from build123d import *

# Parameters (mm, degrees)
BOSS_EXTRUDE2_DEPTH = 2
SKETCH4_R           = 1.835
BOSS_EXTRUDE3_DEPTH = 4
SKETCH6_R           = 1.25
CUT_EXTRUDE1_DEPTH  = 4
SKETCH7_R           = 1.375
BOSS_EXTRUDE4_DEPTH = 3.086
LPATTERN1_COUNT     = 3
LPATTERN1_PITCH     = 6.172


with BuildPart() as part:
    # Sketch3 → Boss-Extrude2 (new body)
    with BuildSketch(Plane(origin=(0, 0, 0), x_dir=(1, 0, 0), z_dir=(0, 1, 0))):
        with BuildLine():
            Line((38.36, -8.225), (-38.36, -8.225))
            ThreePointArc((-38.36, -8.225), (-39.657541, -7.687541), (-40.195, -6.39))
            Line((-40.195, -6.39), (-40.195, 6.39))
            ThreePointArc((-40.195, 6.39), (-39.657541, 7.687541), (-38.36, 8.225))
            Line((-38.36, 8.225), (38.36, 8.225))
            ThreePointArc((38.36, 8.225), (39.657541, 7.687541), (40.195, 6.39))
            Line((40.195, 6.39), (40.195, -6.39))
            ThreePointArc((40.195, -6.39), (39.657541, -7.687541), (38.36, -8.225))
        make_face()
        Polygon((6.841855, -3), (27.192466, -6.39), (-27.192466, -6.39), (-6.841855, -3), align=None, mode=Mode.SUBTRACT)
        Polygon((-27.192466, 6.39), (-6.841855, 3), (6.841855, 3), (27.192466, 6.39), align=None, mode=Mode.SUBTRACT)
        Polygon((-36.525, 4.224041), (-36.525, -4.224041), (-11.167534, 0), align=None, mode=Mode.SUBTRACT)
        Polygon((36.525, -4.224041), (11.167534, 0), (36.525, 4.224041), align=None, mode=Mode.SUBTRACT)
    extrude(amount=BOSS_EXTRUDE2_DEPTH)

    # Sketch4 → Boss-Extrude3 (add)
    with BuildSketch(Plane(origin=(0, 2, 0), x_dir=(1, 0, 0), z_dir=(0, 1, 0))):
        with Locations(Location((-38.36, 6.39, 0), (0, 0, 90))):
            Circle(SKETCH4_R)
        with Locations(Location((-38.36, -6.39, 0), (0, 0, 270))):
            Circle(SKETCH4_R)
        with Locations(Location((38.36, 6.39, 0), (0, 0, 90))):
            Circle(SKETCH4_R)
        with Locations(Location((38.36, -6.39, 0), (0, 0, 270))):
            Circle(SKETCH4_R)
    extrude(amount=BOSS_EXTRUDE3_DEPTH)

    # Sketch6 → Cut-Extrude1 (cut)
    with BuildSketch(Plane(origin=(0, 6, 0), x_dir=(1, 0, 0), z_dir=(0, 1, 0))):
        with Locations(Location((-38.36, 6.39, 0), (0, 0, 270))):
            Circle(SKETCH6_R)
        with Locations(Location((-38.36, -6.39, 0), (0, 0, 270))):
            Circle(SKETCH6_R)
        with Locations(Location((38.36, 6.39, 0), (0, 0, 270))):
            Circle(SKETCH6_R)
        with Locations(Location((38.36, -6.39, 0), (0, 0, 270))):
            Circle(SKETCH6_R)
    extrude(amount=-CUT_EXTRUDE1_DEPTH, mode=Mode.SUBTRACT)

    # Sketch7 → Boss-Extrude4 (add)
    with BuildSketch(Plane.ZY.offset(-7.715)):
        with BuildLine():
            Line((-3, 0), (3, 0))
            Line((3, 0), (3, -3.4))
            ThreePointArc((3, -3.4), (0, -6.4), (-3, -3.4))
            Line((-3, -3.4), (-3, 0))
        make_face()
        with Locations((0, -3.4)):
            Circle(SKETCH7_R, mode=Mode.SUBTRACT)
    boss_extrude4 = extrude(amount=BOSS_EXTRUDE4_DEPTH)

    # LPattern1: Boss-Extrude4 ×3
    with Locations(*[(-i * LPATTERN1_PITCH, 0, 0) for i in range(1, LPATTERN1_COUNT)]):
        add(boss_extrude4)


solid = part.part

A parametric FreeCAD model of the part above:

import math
import FreeCAD as App
import Part
import Sketcher

V = App.Vector
Q = App.Units.Quantity

doc = App.newDocument("Part")
params = doc.addObject("Spreadsheet::Sheet", "Params")
for row, (alias, value) in enumerate([
    ("sketch1_width", "76.72 mm"),
    ("sketch1_height", "12.78 mm"),
    ("pad1_length", "2 mm"),
    ("sketch2_diameter", "3.67 mm"),
    ("pad2_length", "4 mm"),
    ("sketch3_diameter", "2.5 mm"),
    ("pocket1_length", "4 mm"),
    ("sketch4_radius", "3 mm"),
    ("sketch4_diameter", "2.75 mm"),
    ("sketch4_width", "3.4 mm"),
    ("pad3_length", "3.086 mm"),
    ("linearpattern_pitch", "6.172 mm"),
], start=1):
    params.set(f"A{row}", alias)
    params.set(f"B{row}", "=" + value)
    params.setAlias(f"B{row}", alias)

body = doc.addObject("PartDesign::Body", "Body")

sketch1 = doc.addObject("Sketcher::SketchObject", "Sketch")
body.addObject(sketch1)
sketch1.AttachmentSupport = (doc.XZ_Plane, [""])
sketch1.MapMode = "FlatFace"
sketch1.addGeometry([
    Part.LineSegment(V(-38.36, 8.225, 0), V(38.36, 8.225, 0)),
    Part.ArcOfCircle(Part.Circle(V(38.36, 6.39, 0), V(0, 0, 1), 1.835), math.radians(-0.000006), math.radians(90.000006)),
    Part.LineSegment(V(40.195, 6.39, 0), V(40.195, -6.39, 0)),
    Part.ArcOfCircle(Part.Circle(V(38.36, -6.39, 0), V(0, 0, 1), 1.835), math.radians(-90.000006), math.radians(0.000006)),
    Part.LineSegment(V(38.36, -8.225, 0), V(-38.36, -8.225, 0)),
    Part.ArcOfCircle(Part.Circle(V(-38.36, -6.39, 0), V(0, 0, 1), 1.835), math.radians(179.999994), math.radians(270.000006)),
    Part.LineSegment(V(-40.195, -6.39, 0), V(-40.195, 6.39, 0)),
    Part.ArcOfCircle(Part.Circle(V(-38.36, 6.39, 0), V(0, 0, 1), 1.835), math.radians(89.999994), math.radians(180.000006)),
    Part.LineSegment(V(6.841855, 3, 0), V(27.192466, 6.39, 0)),
    Part.LineSegment(V(27.192466, 6.39, 0), V(-27.192466, 6.39, 0)),
    Part.LineSegment(V(-27.192466, 6.39, 0), V(-6.841855, 3, 0)),
    Part.LineSegment(V(-6.841855, 3, 0), V(6.841855, 3, 0)),
    Part.LineSegment(V(36.525, 4.224041, 0), V(11.167534, 0, 0)),
    Part.LineSegment(V(11.167534, 0, 0), V(36.525, -4.224041, 0)),
    Part.LineSegment(V(36.525, -4.224041, 0), V(36.525, 4.224041, 0)),
    Part.LineSegment(V(-36.525, -4.224041, 0), V(-11.167534, 0, 0)),
    Part.LineSegment(V(-11.167534, 0, 0), V(-36.525, 4.224041, 0)),
    Part.LineSegment(V(-36.525, 4.224041, 0), V(-36.525, -4.224041, 0)),
    Part.LineSegment(V(-27.192466, -6.39, 0), V(27.192466, -6.39, 0)),
    Part.LineSegment(V(27.192466, -6.39, 0), V(6.841855, -3, 0)),
    Part.LineSegment(V(6.841855, -3, 0), V(-6.841855, -3, 0)),
    Part.LineSegment(V(-6.841855, -3, 0), V(-27.192466, -6.39, 0)),
], False)
sketch1.addConstraint([
    Sketcher.Constraint("Tangent", 0, 2, 1, 2),
    Sketcher.Constraint("Tangent", 1, 1, 2, 1),
    Sketcher.Constraint("Tangent", 2, 2, 3, 2),
    Sketcher.Constraint("Tangent", 3, 1, 4, 1),
    Sketcher.Constraint("Tangent", 4, 2, 5, 2),
    Sketcher.Constraint("Tangent", 5, 1, 6, 1),
    Sketcher.Constraint("Tangent", 6, 2, 7, 2),
    Sketcher.Constraint("Tangent", 7, 1, 0, 1),
    Sketcher.Constraint("Coincident", 8, 2, 9, 1),
    Sketcher.Constraint("Coincident", 9, 2, 10, 1),
    Sketcher.Constraint("Coincident", 10, 2, 11, 1),
    Sketcher.Constraint("Coincident", 11, 2, 8, 1),
    Sketcher.Constraint("Coincident", 12, 2, 13, 1),
    Sketcher.Constraint("Coincident", 13, 2, 14, 1),
    Sketcher.Constraint("Coincident", 14, 2, 12, 1),
    Sketcher.Constraint("Coincident", 15, 2, 16, 1),
    Sketcher.Constraint("Coincident", 16, 2, 17, 1),
    Sketcher.Constraint("Coincident", 17, 2, 15, 1),
    Sketcher.Constraint("Coincident", 18, 2, 19, 1),
    Sketcher.Constraint("Coincident", 19, 2, 20, 1),
    Sketcher.Constraint("Coincident", 20, 2, 21, 1),
    Sketcher.Constraint("Coincident", 21, 2, 18, 1),
    Sketcher.Constraint("Horizontal", 0),
    Sketcher.Constraint("Vertical", 2),
    Sketcher.Constraint("Horizontal", 4),
    Sketcher.Constraint("Vertical", 6),
    Sketcher.Constraint("Horizontal", 9),
    Sketcher.Constraint("Horizontal", 11),
    Sketcher.Constraint("Vertical", 14),
    Sketcher.Constraint("Vertical", 17),
    Sketcher.Constraint("Horizontal", 18),
    Sketcher.Constraint("Horizontal", 20),
    Sketcher.Constraint("Equal", 1, 3),
    Sketcher.Constraint("Equal", 3, 5),
    Sketcher.Constraint("Equal", 5, 7),
    Sketcher.Constraint("Symmetric", 1, 3, 5, 3, -1, 1),
    Sketcher.Constraint("Symmetric", 12, 2, 15, 2, -1, 1),
    Sketcher.Constraint("Symmetric", 13, 2, 16, 2, -1, 1),
    Sketcher.Constraint("Symmetric", 9, 2, 18, 2, -1, 1),
    Sketcher.Constraint("Symmetric", 10, 2, 19, 2, -1, 1),
    Sketcher.Constraint("PointOnObject", 12, 2, -1),
    Sketcher.Constraint("Parallel", 8, 12),
    Sketcher.Constraint("Parallel", 10, 13),
    Sketcher.Constraint("Parallel", 12, 15),
    Sketcher.Constraint("Parallel", 15, 21),
    Sketcher.Constraint("Horizontal", 6, 2, 8, 2),
    Sketcher.Constraint("Horizontal", 14, 2, 16, 2),
    Sketcher.Constraint("Vertical", 8, 2, 18, 2),
    Sketcher.Constraint("Vertical", 10, 2, 20, 2),
    Sketcher.Constraint("DistanceY", -1, 1, 10, 2, Q("3 mm")),
    Sketcher.Constraint("Radius", 1, Q("1.835 mm")),
    Sketcher.Constraint("DistanceX", 0, 1, 0, 2, Q("76.72 mm")),
    Sketcher.Constraint("DistanceY", 2, 2, 2, 1, Q("12.78 mm")),
    Sketcher.Constraint("DistanceX", 13, 2, 2, 2, Q("3.67 mm")),
    Sketcher.Constraint("DistanceX", 11, 1, 11, 2, Q("13.68371 mm")),
    Sketcher.Constraint("Distance", 8, Q("20.631032 mm")),
    Sketcher.Constraint("Distance", 12, Q("25.706879 mm")),
])
sketch1.setExpression("Constraints[51]", "Params.sketch1_width")
sketch1.setExpression("Constraints[52]", "Params.sketch1_height")
pad1 = doc.addObject("PartDesign::Pad", "Pad")
body.addObject(pad1)
pad1.Profile = sketch1
pad1.setExpression("Length", "Params.pad1_length")
pad1.Reversed = True

sketch2 = doc.addObject("Sketcher::SketchObject", "Sketch001")
body.addObject(sketch2)
sketch2.AttachmentSupport = (doc.XZ_Plane, [""])
sketch2.MapMode = "FlatFace"
sketch2.AttachmentOffset = App.Placement(V(0, 0, -2), App.Rotation())
sketch2.addGeometry([
    Part.Circle(V(-38.36, -6.39, 0), V(0, 0, 1), 1.835),
    Part.Circle(V(-38.36, 6.39, 0), V(0, 0, 1), 1.835),
    Part.Circle(V(38.36, -6.39, 0), V(0, 0, 1), 1.835),
    Part.Circle(V(38.36, 6.39, 0), V(0, 0, 1), 1.835),
], False)
sketch2.addConstraint([
    Sketcher.Constraint("Equal", 0, 1),
    Sketcher.Constraint("Equal", 1, 2),
    Sketcher.Constraint("Equal", 2, 3),
    Sketcher.Constraint("Symmetric", 1, 3, 2, 3, -1, 1),
    Sketcher.Constraint("Symmetric", 0, 3, 3, 3, -1, 1),
    Sketcher.Constraint("Symmetric", 0, 3, 2, 3, -2),
    Sketcher.Constraint("Diameter", 0, Q("3.67 mm")),
    Sketcher.Constraint("DistanceX", 0, 3, -1, 1, Q("38.36 mm")),
    Sketcher.Constraint("DistanceY", 0, 3, -1, 1, Q("6.39 mm")),
])
sketch2.setExpression("Constraints[6]", "Params.sketch2_diameter")
pad2 = doc.addObject("PartDesign::Pad", "Pad001")
body.addObject(pad2)
pad2.Profile = sketch2
pad2.setExpression("Length", "Params.pad2_length")
pad2.Reversed = True

sketch3 = doc.addObject("Sketcher::SketchObject", "Sketch002")
body.addObject(sketch3)
sketch3.AttachmentSupport = (doc.XZ_Plane, [""])
sketch3.MapMode = "FlatFace"
sketch3.AttachmentOffset = App.Placement(V(0, 0, -6), App.Rotation())
sketch3.addGeometry([
    Part.Circle(V(-38.36, -6.39, 0), V(0, 0, 1), 1.25),
    Part.Circle(V(-38.36, 6.39, 0), V(0, 0, 1), 1.25),
    Part.Circle(V(38.36, -6.39, 0), V(0, 0, 1), 1.25),
    Part.Circle(V(38.36, 6.39, 0), V(0, 0, 1), 1.25),
], False)
sketch3.addConstraint([
    Sketcher.Constraint("Equal", 0, 1),
    Sketcher.Constraint("Equal", 1, 2),
    Sketcher.Constraint("Equal", 2, 3),
    Sketcher.Constraint("Symmetric", 1, 3, 2, 3, -1, 1),
    Sketcher.Constraint("Symmetric", 0, 3, 3, 3, -1, 1),
    Sketcher.Constraint("Symmetric", 0, 3, 2, 3, -2),
    Sketcher.Constraint("Diameter", 0, Q("2.5 mm")),
    Sketcher.Constraint("DistanceX", 0, 3, -1, 1, Q("38.36 mm")),
    Sketcher.Constraint("DistanceY", 0, 3, -1, 1, Q("6.39 mm")),
])
sketch3.setExpression("Constraints[6]", "Params.sketch3_diameter")
pocket1 = doc.addObject("PartDesign::Pocket", "Pocket")
body.addObject(pocket1)
pocket1.Profile = sketch3
pocket1.setExpression("Length", "Params.pocket1_length")
pocket1.Reversed = True

sketch4 = doc.addObject("Sketcher::SketchObject", "Sketch003")
body.addObject(sketch4)
sketch4.AttachmentSupport = (doc.YZ_Plane, [""])
sketch4.MapMode = "FlatFace"
sketch4.AttachmentOffset = App.Placement(V(0, 0, 7.715), App.Rotation())
sketch4.addGeometry([
    Part.LineSegment(V(0, 3, 0), V(0, -3, 0)),
    Part.LineSegment(V(0, -3, 0), V(-3.4, -3, 0)),
    Part.ArcOfCircle(Part.Circle(V(-3.4, 0, 0), V(0, 0, 1), 3), math.radians(90), math.radians(270)),
    Part.LineSegment(V(-3.4, 3, 0), V(0, 3, 0)),
    Part.Circle(V(-3.4, 0, 0), V(0, 0, 1), 1.375),
], False)
sketch4.addConstraint([
    Sketcher.Constraint("Coincident", 0, 2, 1, 1),
    Sketcher.Constraint("Tangent", 1, 2, 2, 2),
    Sketcher.Constraint("Tangent", 2, 1, 3, 1),
    Sketcher.Constraint("Coincident", 3, 2, 0, 1),
    Sketcher.Constraint("Vertical", 0),
    Sketcher.Constraint("Horizontal", 1),
    Sketcher.Constraint("Horizontal", 3),
    Sketcher.Constraint("Coincident", 4, 3, 2, 3),
    Sketcher.Constraint("Symmetric", 0, 2, 3, 2, -1, 1),
    Sketcher.Constraint("Radius", 2, Q("3 mm")),
    Sketcher.Constraint("Diameter", 4, Q("2.75 mm")),
    Sketcher.Constraint("DistanceX", 1, 2, 1, 1, Q("3.4 mm")),
])
sketch4.setExpression("Constraints[9]", "Params.sketch4_radius")
sketch4.setExpression("Constraints[10]", "Params.sketch4_diameter")
sketch4.setExpression("Constraints[11]", "Params.sketch4_width")
pad3 = doc.addObject("PartDesign::Pad", "Pad002")
body.addObject(pad3)
pad3.Profile = sketch4
pad3.setExpression("Length", "Params.pad3_length")
pad3.Reversed = True
doc.recompute()

linearpattern = doc.addObject("PartDesign::LinearPattern", "LinearPattern")
body.addObject(linearpattern)
linearpattern.Originals = [pad3]
linearpattern.Direction = (doc.X_Axis, [""])
linearpattern.Mode = "offset"
linearpattern.setExpression("Offset", "Params.linearpattern_pitch")
linearpattern.Occurrences = 3
linearpattern.Reversed = True
body.Tip = linearpattern

doc.recompute()
